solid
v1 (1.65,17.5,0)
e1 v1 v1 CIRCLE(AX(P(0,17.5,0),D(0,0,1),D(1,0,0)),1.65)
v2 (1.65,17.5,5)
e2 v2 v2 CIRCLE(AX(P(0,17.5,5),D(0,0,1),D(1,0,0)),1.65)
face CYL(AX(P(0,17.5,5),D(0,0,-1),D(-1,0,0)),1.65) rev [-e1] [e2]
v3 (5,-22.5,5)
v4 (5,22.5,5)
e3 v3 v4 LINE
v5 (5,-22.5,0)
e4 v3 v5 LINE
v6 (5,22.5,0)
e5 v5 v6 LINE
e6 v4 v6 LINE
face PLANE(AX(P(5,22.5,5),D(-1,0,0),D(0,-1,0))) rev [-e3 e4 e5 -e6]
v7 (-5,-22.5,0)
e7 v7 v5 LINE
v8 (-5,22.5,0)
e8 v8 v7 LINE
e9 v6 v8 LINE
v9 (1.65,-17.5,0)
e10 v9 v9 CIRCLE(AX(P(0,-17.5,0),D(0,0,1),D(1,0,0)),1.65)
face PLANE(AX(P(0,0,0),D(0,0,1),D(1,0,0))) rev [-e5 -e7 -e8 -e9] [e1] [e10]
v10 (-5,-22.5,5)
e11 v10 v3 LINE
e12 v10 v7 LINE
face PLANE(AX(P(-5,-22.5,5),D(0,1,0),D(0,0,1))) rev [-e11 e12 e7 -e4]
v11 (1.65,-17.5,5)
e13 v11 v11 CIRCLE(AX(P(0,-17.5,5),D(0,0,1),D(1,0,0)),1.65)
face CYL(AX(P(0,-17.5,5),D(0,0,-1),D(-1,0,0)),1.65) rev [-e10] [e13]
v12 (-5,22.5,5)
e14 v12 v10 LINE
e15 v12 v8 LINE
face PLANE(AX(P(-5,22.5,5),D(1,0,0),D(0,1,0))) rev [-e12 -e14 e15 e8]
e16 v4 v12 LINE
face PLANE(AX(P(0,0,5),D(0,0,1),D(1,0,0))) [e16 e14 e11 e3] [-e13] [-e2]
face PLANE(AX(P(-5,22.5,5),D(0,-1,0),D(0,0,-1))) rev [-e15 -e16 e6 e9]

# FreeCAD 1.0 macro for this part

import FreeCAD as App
import Part
import Sketcher

doc = App.newDocument("Part")
params = doc.addObject("Spreadsheet::Sheet", "Params")
for row, (alias, value) in enumerate([
    ("sketch1_diameter", "3.3 mm"),
    ("sketch1_width", "10 mm"),
    ("sketch1_height", "45 mm"),
    ("pad1_length", "5 mm"),
], start=1):
    params.set(f"A{row}", alias)
    params.set(f"B{row}", "=" + value)
    params.setAlias(f"B{row}", alias)

body = doc.addObject("PartDesign::Body", "Body")

sketch1 = body.newObject("Sketcher::SketchObject", "Sketch")
sketch1.AttachmentSupport = (doc.getObject("XY_Plane"), [""])
sketch1.MapMode = "FlatFace"
sketch1.addGeometry([
    Part.LineSegment(App.Vector(-5, 22.5, 0), App.Vector(-5, -22.5, 0)),
    Part.LineSegment(App.Vector(-5, -22.5, 0), App.Vector(5, -22.5, 0)),
    Part.LineSegment(App.Vector(5, -22.5, 0), App.Vector(5, 22.5, 0)),
    Part.LineSegment(App.Vector(5, 22.5, 0), App.Vector(-5, 22.5, 0)),
    Part.Circle(App.Vector(0, -17.5, 0), App.Vector(0, 0, 1), 1.65),
    Part.Circle(App.Vector(0, 17.5, 0), App.Vector(0, 0, 1), 1.65),
], False)
sketch1.addConstraint([
    Sketcher.Constraint("Coincident", 0, 2, 1, 1),
    Sketcher.Constraint("Coincident", 1, 2, 2, 1),
    Sketcher.Constraint("Coincident", 2, 2, 3, 1),
    Sketcher.Constraint("Coincident", 3, 2, 0, 1),
    Sketcher.Constraint("Vertical", 0),
    Sketcher.Constraint("Horizontal", 1),
    Sketcher.Constraint("Vertical", 2),
    Sketcher.Constraint("Horizontal", 3),
    Sketcher.Constraint("Equal", 4, 5),
    Sketcher.Constraint("Symmetric", 4, 3, 5, 3, -1, 1),
    Sketcher.Constraint("Symmetric", 0, 2, 2, 2, -1, 1),
    Sketcher.Constraint("PointOnObject", 4, 3, -2),
    Sketcher.Constraint("Diameter", 4, 3.3),
    Sketcher.Constraint("DistanceX", 1, 1, 1, 2, 10.0),
    Sketcher.Constraint("DistanceY", 0, 2, 0, 1, 45.0),
    Sketcher.Constraint("DistanceY", 4, 3, 5, 3, 35.0),
])
sketch1.setExpression("Constraints[12]", "Params.sketch1_diameter")
sketch1.setExpression("Constraints[13]", "Params.sketch1_width")
sketch1.setExpression("Constraints[14]", "Params.sketch1_height")
pad1 = body.newObject("PartDesign::Pad", "Pad")
pad1.Profile = sketch1
pad1.setExpression("Length", "Params.pad1_length")

doc.recompute()
